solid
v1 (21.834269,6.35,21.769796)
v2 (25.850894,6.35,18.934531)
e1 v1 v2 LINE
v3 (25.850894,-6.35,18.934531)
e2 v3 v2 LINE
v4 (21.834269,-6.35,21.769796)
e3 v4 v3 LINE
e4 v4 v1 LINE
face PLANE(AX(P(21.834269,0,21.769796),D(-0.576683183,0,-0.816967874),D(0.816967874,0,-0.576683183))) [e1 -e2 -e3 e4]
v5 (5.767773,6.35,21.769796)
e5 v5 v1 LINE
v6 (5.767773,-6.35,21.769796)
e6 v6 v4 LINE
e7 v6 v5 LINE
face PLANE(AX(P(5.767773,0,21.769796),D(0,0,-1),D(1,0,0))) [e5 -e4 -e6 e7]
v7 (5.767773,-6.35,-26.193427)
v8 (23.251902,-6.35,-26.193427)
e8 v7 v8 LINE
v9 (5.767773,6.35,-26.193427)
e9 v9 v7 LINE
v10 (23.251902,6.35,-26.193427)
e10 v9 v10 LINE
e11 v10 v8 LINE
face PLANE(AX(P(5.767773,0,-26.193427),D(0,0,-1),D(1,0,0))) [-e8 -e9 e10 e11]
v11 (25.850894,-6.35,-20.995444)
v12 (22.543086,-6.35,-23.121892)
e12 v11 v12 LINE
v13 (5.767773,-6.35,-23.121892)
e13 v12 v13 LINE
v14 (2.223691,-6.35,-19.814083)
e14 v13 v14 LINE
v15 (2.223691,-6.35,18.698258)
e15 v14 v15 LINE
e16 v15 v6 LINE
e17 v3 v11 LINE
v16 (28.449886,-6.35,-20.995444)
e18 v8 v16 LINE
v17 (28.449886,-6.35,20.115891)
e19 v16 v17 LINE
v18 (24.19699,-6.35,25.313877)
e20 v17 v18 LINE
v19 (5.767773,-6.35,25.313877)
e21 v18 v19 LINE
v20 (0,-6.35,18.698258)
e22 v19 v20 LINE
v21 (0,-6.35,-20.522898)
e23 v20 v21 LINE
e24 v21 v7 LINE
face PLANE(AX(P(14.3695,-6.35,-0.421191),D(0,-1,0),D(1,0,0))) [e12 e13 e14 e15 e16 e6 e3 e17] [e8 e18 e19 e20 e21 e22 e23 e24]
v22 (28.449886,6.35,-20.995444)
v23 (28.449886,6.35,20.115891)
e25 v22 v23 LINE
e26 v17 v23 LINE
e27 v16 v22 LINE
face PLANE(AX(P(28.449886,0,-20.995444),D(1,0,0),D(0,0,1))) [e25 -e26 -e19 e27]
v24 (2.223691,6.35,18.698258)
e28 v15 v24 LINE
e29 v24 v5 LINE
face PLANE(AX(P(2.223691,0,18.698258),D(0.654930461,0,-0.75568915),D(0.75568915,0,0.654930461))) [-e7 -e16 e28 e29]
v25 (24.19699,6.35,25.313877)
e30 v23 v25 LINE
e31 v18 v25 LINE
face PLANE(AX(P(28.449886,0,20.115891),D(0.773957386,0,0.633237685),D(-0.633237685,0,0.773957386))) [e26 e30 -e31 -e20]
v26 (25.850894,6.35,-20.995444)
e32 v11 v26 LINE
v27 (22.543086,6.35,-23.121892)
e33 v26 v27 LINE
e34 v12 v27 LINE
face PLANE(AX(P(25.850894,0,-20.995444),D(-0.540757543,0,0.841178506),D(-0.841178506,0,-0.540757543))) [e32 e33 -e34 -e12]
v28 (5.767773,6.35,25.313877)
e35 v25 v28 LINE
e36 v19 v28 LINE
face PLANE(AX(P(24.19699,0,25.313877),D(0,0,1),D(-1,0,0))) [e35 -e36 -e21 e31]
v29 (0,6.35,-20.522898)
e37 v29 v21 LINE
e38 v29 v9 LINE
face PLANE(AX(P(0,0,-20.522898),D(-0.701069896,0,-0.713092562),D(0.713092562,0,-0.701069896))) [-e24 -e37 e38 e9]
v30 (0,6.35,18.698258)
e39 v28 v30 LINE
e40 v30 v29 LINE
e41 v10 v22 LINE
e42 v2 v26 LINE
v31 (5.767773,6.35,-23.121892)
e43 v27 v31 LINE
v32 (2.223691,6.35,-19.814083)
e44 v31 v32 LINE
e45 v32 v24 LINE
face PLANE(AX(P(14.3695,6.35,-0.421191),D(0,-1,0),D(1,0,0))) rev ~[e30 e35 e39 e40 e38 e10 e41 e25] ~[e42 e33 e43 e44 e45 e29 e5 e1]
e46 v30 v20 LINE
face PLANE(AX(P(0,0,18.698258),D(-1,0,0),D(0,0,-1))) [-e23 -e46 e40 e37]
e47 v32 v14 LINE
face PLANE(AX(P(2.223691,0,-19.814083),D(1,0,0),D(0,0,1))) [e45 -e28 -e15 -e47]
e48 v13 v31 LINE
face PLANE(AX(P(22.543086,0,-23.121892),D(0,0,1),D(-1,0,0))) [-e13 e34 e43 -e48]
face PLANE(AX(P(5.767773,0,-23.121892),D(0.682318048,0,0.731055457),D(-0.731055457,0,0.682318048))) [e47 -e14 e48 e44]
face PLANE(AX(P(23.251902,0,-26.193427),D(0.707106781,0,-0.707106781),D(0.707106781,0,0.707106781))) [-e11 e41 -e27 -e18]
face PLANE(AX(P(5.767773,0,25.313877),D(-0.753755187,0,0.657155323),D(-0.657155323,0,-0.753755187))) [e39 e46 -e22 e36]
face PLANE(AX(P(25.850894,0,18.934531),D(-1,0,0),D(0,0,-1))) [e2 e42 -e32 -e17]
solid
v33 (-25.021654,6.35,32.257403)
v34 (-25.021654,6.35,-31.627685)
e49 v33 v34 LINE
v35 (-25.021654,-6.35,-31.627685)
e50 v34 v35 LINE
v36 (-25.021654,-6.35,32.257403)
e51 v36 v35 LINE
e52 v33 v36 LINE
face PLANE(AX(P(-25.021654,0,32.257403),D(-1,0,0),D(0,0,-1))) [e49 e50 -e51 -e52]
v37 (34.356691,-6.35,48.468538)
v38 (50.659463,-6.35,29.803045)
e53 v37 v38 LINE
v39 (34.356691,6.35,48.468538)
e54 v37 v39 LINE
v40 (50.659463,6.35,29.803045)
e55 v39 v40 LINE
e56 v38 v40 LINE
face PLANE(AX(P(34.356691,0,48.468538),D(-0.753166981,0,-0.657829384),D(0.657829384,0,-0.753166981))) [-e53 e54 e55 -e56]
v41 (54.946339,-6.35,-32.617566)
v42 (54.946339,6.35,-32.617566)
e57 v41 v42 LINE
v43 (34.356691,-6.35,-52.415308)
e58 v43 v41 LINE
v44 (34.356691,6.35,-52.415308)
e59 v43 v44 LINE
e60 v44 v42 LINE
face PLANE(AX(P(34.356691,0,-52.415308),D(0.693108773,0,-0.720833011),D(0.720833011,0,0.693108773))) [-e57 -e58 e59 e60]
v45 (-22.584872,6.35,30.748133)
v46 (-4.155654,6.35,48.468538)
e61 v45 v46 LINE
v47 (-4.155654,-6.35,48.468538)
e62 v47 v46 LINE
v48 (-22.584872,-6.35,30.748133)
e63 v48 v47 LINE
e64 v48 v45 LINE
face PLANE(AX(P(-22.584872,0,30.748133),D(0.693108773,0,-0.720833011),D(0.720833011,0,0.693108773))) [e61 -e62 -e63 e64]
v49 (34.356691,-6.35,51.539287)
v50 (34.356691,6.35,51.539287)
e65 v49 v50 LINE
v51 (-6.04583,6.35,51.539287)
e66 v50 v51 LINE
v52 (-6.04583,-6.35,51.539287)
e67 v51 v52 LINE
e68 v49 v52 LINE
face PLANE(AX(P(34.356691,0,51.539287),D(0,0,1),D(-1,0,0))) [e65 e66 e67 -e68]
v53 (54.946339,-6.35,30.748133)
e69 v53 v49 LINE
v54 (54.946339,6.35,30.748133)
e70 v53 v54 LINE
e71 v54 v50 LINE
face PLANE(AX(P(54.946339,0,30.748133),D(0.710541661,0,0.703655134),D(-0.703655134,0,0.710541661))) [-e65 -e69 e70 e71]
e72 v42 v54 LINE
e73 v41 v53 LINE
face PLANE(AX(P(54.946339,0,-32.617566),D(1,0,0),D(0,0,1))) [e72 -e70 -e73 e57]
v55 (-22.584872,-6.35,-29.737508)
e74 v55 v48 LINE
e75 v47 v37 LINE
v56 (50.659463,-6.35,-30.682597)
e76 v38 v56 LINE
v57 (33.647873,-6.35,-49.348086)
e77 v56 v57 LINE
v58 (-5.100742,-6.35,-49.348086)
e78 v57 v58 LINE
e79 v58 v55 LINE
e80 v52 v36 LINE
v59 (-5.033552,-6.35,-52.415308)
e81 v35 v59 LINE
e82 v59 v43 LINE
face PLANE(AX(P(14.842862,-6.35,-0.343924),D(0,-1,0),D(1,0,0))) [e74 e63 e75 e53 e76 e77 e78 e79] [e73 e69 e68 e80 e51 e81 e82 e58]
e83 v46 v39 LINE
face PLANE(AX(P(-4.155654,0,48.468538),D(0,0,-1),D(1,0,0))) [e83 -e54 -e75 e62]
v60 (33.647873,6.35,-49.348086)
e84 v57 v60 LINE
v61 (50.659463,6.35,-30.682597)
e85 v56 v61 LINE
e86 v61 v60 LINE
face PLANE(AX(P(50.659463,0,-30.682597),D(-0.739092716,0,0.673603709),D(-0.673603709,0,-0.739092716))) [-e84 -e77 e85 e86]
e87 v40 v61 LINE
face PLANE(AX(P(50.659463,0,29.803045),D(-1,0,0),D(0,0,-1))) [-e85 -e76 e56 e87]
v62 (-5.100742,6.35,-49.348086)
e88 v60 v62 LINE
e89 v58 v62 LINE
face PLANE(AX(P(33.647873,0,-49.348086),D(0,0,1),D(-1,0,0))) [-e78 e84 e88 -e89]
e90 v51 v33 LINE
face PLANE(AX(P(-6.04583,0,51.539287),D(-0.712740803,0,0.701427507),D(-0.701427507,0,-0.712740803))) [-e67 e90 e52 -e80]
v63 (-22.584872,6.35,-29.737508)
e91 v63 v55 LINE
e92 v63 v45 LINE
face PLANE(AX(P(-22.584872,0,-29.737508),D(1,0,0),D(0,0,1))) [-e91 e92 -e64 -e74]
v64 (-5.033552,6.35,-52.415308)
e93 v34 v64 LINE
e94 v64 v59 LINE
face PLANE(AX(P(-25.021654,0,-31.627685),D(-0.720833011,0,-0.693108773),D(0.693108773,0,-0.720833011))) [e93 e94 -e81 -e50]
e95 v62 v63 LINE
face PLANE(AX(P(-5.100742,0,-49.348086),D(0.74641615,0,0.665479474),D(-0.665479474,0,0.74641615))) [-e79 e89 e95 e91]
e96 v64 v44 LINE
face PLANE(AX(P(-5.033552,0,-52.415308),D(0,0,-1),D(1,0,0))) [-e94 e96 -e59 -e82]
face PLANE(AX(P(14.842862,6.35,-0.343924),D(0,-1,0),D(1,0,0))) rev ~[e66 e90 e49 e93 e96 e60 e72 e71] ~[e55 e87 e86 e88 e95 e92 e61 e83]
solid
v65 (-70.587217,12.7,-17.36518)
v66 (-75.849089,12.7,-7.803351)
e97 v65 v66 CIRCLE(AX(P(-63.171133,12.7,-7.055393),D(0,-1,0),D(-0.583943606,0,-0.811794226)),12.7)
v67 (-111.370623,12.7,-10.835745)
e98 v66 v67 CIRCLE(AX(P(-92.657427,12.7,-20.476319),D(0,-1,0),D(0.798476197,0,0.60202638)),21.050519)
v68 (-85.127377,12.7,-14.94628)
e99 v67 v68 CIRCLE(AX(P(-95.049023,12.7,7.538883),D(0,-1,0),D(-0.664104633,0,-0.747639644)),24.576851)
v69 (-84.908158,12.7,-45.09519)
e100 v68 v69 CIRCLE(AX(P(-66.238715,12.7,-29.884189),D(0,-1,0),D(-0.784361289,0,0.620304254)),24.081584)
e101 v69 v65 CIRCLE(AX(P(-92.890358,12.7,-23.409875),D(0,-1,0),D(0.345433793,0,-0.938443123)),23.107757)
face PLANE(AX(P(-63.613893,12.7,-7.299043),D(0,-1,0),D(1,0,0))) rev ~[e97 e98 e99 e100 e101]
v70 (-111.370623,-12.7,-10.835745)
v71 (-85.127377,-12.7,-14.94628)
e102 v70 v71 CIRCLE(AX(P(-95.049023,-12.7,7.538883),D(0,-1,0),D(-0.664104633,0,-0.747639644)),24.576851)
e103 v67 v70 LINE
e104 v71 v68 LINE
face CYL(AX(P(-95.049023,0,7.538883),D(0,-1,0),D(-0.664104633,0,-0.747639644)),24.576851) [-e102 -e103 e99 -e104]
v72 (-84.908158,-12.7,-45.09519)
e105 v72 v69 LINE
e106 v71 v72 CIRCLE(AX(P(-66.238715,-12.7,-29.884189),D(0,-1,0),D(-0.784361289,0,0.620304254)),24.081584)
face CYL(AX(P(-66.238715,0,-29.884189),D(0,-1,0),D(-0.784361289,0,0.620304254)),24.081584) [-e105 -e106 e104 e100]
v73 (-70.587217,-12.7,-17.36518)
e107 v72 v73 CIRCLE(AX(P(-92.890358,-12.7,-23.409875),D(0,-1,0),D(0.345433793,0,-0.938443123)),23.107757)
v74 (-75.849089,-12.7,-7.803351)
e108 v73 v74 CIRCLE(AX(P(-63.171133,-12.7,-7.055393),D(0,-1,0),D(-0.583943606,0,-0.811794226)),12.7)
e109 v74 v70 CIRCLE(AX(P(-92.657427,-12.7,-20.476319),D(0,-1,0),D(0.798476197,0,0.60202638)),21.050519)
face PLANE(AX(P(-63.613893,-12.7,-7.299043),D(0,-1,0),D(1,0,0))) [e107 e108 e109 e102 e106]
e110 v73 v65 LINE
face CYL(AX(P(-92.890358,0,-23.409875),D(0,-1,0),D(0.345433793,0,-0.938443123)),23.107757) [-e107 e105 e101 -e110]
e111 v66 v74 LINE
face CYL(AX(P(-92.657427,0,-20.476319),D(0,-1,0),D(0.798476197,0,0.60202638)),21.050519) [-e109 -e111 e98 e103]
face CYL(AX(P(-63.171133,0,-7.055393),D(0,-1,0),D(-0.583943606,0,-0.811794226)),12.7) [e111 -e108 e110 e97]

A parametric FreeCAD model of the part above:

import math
import FreeCAD as App
import Part
import Sketcher
Q = App.Units.Quantity


def add_polygon(sketch, points):
    """Adds a closed chain of lines whose ends are joined by coincident constraints."""
    first, n = sketch.GeometryCount, len(points)
    for a, b in zip(points, points[1:] + points[:1]):
        sketch.addGeometry(Part.LineSegment(App.Vector(*a, 0), App.Vector(*b, 0)), False)
    for i in range(n):
        sketch.addConstraint(Sketcher.Constraint("Coincident", first + i, 2, first + (i + 1) % n, 1))

doc = App.newDocument("Part")
body = doc.addObject("PartDesign::Body", "Body")

# Sketch on XZ plane
sketch1 = doc.addObject("Sketcher::SketchObject", "Sketch")
body.addObject(sketch1)
sketch1.AttachmentSupport = (doc.XZ_Plane, [""])
sketch1.MapMode = "FlatFace"
add_polygon(sketch1, [(34.356691, 51.539287), (-6.04583, 51.539287), (-25.021654, 32.257403), (-25.021654, -31.627685), (-5.033552, -52.415308), (34.356691, -52.415308), (54.946339, -32.617566), (54.946339, 30.748133)])  # lines 0-7
add_polygon(sketch1, [(-5.100742, -49.348086), (-22.584872, -29.737508), (-22.584872, 30.748133), (-4.155654, 48.468538), (34.356691, 48.468538), (50.659463, 29.803045), (50.659463, -30.682597), (33.647873, -49.348086)])  # lines 8-15
sketch1.addConstraint([
    Sketcher.Constraint("Horizontal", 0),
    Sketcher.Constraint("Vertical", 2),
    Sketcher.Constraint("Horizontal", 4),
    Sketcher.Constraint("Vertical", 6),
    Sketcher.Constraint("Vertical", 9),
    Sketcher.Constraint("Horizontal", 11),
    Sketcher.Constraint("Vertical", 13),
    Sketcher.Constraint("Horizontal", 15),
    Sketcher.Constraint("Perpendicular", 3, 5),
    Sketcher.Constraint("Parallel", 5, 10),
    Sketcher.Constraint("Horizontal", 6, 2, 9, 2),
    Sketcher.Constraint("Vertical", 4, 2, 7, 2),
    Sketcher.Constraint("Vertical", 7, 2, 11, 2),
    Sketcher.Constraint("Equal", 9, 13),
    Sketcher.Constraint("DistanceY", 6, 1, 6, 2, Q("63.365699 mm")),
    Sketcher.Constraint("DistanceX", 0, 2, 0, 1, Q("40.402521 mm")),
    Sketcher.Constraint("DistanceY", 9, 1, 9, 2, Q("60.485641 mm")),
    Sketcher.Constraint("DistanceX", 2, 2, 3, 2, Q("19.988102 mm")),
    Sketcher.Constraint("DistanceY", 3, 2, 8, 2, Q("22.6778 mm")),
    Sketcher.Constraint("DistanceX", 1, 2, 10, 2, Q("20.866 mm")),
    Sketcher.Constraint("DistanceY", 15, 2, 2, 2, Q("17.720401 mm")),
    Sketcher.Constraint("Distance", 1, Q("27.05315 mm")),
    Sketcher.Constraint("DistanceX", 4, 1, 4, 2, Q("39.390243 mm")),
    Sketcher.Constraint("DistanceX", 15, 2, 15, 1, Q("38.748614 mm")),
    Sketcher.Constraint("DistanceY", 2, 2, 2, 1, Q("63.885088 mm")),
    Sketcher.Constraint("DistanceX", 0, 2, -1, 1, Q("6.04583 mm")),
    Sketcher.Constraint("DistanceX", -1, 1, 5, 2, Q("54.946339 mm")),
    Sketcher.Constraint("DistanceX", 15, 2, -1, 1, Q("5.100742 mm")),
    Sketcher.Constraint("DistanceX", 2, 2, 8, 2, Q("2.436782 mm")),
    Sketcher.Constraint("DistanceX", 11, 2, 12, 2, Q("16.302772 mm")),
    Sketcher.Constraint("DistanceY", 12, 2, 7, 2, Q("21.736242 mm")),
    Sketcher.Constraint("DistanceY", -1, 1, 0, 2, Q("51.539287 mm")),
])
pad1 = doc.addObject("PartDesign::Pad", "Pad")
body.addObject(pad1)
pad1.Profile = sketch1
pad1.Length = Q("0.5 in")
pad1.Midplane = True
body2 = doc.addObject("PartDesign::Body", "Body001")

# Sketch on XZ plane
sketch2 = doc.addObject("Sketcher::SketchObject", "Sketch001")
body2.addObject(sketch2)
sketch2.AttachmentSupport = (doc.getObject("XZ_Plane001"), [""])
sketch2.MapMode = "FlatFace"
add_polygon(sketch2, [(5.767773, 25.313877), (0, 18.698258), (0, -20.522898), (5.767773, -26.193427), (23.251902, -26.193427), (28.449886, -20.995444), (28.449886, 20.115891), (24.19699, 25.313877)])  # lines 0-7
add_polygon(sketch2, [(5.767773, -23.121892), (2.223691, -19.814083), (2.223691, 18.698258), (5.767773, 21.769796), (21.834269, 21.769796), (25.850894, 18.934531), (25.850894, -20.995444), (22.543086, -23.121892)])  # lines 8-15
sketch2.addConstraint([
    Sketcher.Constraint("Vertical", 1),
    Sketcher.Constraint("Horizontal", 3),
    Sketcher.Constraint("Vertical", 5),
    Sketcher.Constraint("Horizontal", 7),
    Sketcher.Constraint("Vertical", 9),
    Sketcher.Constraint("Horizontal", 11),
    Sketcher.Constraint("Vertical", 13),
    Sketcher.Constraint("Horizontal", 15),
    Sketcher.Constraint("PointOnObject", 0, 2, -2),
    Sketcher.Constraint("Horizontal", 0, 2, 9, 2),
    Sketcher.Constraint("Horizontal", 4, 2, 13, 2),
    Sketcher.Constraint("Vertical", 2, 2, 7, 2),
    Sketcher.Constraint("Vertical", 7, 2, 10, 2),
    Sketcher.Constraint("Vertical", 10, 2, 15, 2),
    Sketcher.Constraint("Angle", 4, Q("45 deg")),
    Sketcher.Constraint("DistanceX", 3, 1, 3, 2, Q("17.484129 mm")),
    Sketcher.Constraint("DistanceY", 9, 1, 9, 2, Q("38.512342 mm")),
    Sketcher.Constraint("DistanceY", 1, 2, -1, 1, Q("20.522898 mm")),
    Sketcher.Constraint("DistanceX", 9, 2, 6, 2, Q("21.973299 mm")),
    Sketcher.Constraint("DistanceX", 14, 2, 4, 2, Q("5.9068 mm")),
    Sketcher.Constraint("Distance", 0, Q("8.776879 mm")),
    Sketcher.Constraint("Distance", 4, Q("7.351058 mm")),
    Sketcher.Constraint("Distance", 14, Q("3.93235 mm")),
    Sketcher.Constraint("DistanceX", 7, 2, 7, 1, Q("18.429217 mm")),
    Sketcher.Constraint("DistanceX", 11, 1, 11, 2, Q("16.066496 mm")),
    Sketcher.Constraint("DistanceY", 1, 2, 1, 1, Q("39.221156 mm")),
    Sketcher.Constraint("DistanceY", 5, 1, 5, 2, Q("41.111335 mm")),
    Sketcher.Constraint("DistanceY", 13, 2, 13, 1, Q("39.929975 mm")),
    Sketcher.Constraint("DistanceY", -1, 1, 5, 2, Q("20.115891 mm")),
    Sketcher.Constraint("DistanceX", -1, 1, 6, 2, Q("24.19699 mm")),
    Sketcher.Constraint("DistanceY", 14, 2, -1, 1, Q("23.121892 mm")),
    Sketcher.Constraint("DistanceY", 10, 2, 7, 2, Q("3.544081 mm")),
])
pad2 = doc.addObject("PartDesign::Pad", "Pad001")
body2.addObject(pad2)
pad2.Profile = sketch2
pad2.Length = Q("0.5 in")
pad2.Midplane = True
body3 = doc.addObject("PartDesign::Body", "Body002")

# Sketch on XZ plane
sketch3 = doc.addObject("Sketcher::SketchObject", "Sketch002")
body3.addObject(sketch3)
sketch3.AttachmentSupport = (doc.getObject("XZ_Plane002"), [""])
sketch3.MapMode = "FlatFace"
sketch3.addGeometry([
    Part.ArcOfCircle(Part.Circle(App.Vector(-63.171133, -7.055393, 0), App.Vector(0, 0, 1), 12.7), math.radians(-125.728396), math.radians(183.376353)),  # 0
    Part.ArcOfCircle(Part.Circle(App.Vector(-92.657427, -20.476319, 0), App.Vector(0, 0, 1), 21.050519), math.radians(37.015165), math.radians(152.7436)),  # 1
    Part.ArcOfCircle(Part.Circle(App.Vector(-95.049023, 7.538883, 0), App.Vector(0, 0, 1), 24.576851), math.radians(-131.613672), math.radians(-66.190385)),  # 2
    Part.ArcOfCircle(Part.Circle(App.Vector(-66.238715, -29.884189, 0), App.Vector(0, 0, 1), 24.081584), math.radians(141.661644), math.radians(219.17156)),  # 3
    Part.ArcOfCircle(Part.Circle(App.Vector(-92.890358, -23.409875, 0), App.Vector(0, 0, 1), 23.107757), math.radians(-69.791722), math.radians(15.164267)),  # 4
], False)
sketch3.addConstraint([
    Sketcher.Constraint("Coincident", 0, 2, 1, 1),
    Sketcher.Constraint("Coincident", 1, 2, 2, 1),
    Sketcher.Constraint("Coincident", 2, 2, 3, 1),
    Sketcher.Constraint("Coincident", 3, 2, 4, 1),
    Sketcher.Constraint("Coincident", 4, 2, 0, 1),
    Sketcher.Constraint("Radius", 0, Q("0.5 in")),
    Sketcher.Constraint("Radius", 1, Q("21.050519 mm")),
    Sketcher.Constraint("Radius", 2, Q("24.576851 mm")),
    Sketcher.Constraint("Radius", 3, Q("24.081584 mm")),
    Sketcher.Constraint("Radius", 4, Q("23.107757 mm")),
    Sketcher.Constraint("DistanceX", 1, 2, 2, 3, Q("16.321601 mm")),
    Sketcher.Constraint("DistanceX", 4, 3, 3, 2, Q("7.9822 mm")),
    Sketcher.Constraint("DistanceY", 3, 2, 3, 3, Q("15.211002 mm")),
    Sketcher.Constraint("DistanceY", 4, 2, 2, 2, Q("2.4189 mm")),
    Sketcher.Constraint("DistanceY", 1, 3, -1, 1, Q("20.476319 mm")),
    Sketcher.Constraint("DistanceY", 3, 3, -1, 1, Q("29.884189 mm")),
    Sketcher.Constraint("DistanceX", 0, 2, -1, 1, Q("75.849089 mm")),
    Sketcher.Constraint("DistanceY", 0, 2, -1, 1, Q("7.803351 mm")),
    Sketcher.Constraint("DistanceY", 2, 2, -1, 1, Q("14.94628 mm")),
    Sketcher.Constraint("DistanceX", 2, 3, 0, 3, Q("31.877889 mm")),
])
pad3 = doc.addObject("PartDesign::Pad", "Pad002")
body3.addObject(pad3)
pad3.Profile = sketch3
pad3.Length = Q("1 in")
pad3.Midplane = True

doc.recompute()
